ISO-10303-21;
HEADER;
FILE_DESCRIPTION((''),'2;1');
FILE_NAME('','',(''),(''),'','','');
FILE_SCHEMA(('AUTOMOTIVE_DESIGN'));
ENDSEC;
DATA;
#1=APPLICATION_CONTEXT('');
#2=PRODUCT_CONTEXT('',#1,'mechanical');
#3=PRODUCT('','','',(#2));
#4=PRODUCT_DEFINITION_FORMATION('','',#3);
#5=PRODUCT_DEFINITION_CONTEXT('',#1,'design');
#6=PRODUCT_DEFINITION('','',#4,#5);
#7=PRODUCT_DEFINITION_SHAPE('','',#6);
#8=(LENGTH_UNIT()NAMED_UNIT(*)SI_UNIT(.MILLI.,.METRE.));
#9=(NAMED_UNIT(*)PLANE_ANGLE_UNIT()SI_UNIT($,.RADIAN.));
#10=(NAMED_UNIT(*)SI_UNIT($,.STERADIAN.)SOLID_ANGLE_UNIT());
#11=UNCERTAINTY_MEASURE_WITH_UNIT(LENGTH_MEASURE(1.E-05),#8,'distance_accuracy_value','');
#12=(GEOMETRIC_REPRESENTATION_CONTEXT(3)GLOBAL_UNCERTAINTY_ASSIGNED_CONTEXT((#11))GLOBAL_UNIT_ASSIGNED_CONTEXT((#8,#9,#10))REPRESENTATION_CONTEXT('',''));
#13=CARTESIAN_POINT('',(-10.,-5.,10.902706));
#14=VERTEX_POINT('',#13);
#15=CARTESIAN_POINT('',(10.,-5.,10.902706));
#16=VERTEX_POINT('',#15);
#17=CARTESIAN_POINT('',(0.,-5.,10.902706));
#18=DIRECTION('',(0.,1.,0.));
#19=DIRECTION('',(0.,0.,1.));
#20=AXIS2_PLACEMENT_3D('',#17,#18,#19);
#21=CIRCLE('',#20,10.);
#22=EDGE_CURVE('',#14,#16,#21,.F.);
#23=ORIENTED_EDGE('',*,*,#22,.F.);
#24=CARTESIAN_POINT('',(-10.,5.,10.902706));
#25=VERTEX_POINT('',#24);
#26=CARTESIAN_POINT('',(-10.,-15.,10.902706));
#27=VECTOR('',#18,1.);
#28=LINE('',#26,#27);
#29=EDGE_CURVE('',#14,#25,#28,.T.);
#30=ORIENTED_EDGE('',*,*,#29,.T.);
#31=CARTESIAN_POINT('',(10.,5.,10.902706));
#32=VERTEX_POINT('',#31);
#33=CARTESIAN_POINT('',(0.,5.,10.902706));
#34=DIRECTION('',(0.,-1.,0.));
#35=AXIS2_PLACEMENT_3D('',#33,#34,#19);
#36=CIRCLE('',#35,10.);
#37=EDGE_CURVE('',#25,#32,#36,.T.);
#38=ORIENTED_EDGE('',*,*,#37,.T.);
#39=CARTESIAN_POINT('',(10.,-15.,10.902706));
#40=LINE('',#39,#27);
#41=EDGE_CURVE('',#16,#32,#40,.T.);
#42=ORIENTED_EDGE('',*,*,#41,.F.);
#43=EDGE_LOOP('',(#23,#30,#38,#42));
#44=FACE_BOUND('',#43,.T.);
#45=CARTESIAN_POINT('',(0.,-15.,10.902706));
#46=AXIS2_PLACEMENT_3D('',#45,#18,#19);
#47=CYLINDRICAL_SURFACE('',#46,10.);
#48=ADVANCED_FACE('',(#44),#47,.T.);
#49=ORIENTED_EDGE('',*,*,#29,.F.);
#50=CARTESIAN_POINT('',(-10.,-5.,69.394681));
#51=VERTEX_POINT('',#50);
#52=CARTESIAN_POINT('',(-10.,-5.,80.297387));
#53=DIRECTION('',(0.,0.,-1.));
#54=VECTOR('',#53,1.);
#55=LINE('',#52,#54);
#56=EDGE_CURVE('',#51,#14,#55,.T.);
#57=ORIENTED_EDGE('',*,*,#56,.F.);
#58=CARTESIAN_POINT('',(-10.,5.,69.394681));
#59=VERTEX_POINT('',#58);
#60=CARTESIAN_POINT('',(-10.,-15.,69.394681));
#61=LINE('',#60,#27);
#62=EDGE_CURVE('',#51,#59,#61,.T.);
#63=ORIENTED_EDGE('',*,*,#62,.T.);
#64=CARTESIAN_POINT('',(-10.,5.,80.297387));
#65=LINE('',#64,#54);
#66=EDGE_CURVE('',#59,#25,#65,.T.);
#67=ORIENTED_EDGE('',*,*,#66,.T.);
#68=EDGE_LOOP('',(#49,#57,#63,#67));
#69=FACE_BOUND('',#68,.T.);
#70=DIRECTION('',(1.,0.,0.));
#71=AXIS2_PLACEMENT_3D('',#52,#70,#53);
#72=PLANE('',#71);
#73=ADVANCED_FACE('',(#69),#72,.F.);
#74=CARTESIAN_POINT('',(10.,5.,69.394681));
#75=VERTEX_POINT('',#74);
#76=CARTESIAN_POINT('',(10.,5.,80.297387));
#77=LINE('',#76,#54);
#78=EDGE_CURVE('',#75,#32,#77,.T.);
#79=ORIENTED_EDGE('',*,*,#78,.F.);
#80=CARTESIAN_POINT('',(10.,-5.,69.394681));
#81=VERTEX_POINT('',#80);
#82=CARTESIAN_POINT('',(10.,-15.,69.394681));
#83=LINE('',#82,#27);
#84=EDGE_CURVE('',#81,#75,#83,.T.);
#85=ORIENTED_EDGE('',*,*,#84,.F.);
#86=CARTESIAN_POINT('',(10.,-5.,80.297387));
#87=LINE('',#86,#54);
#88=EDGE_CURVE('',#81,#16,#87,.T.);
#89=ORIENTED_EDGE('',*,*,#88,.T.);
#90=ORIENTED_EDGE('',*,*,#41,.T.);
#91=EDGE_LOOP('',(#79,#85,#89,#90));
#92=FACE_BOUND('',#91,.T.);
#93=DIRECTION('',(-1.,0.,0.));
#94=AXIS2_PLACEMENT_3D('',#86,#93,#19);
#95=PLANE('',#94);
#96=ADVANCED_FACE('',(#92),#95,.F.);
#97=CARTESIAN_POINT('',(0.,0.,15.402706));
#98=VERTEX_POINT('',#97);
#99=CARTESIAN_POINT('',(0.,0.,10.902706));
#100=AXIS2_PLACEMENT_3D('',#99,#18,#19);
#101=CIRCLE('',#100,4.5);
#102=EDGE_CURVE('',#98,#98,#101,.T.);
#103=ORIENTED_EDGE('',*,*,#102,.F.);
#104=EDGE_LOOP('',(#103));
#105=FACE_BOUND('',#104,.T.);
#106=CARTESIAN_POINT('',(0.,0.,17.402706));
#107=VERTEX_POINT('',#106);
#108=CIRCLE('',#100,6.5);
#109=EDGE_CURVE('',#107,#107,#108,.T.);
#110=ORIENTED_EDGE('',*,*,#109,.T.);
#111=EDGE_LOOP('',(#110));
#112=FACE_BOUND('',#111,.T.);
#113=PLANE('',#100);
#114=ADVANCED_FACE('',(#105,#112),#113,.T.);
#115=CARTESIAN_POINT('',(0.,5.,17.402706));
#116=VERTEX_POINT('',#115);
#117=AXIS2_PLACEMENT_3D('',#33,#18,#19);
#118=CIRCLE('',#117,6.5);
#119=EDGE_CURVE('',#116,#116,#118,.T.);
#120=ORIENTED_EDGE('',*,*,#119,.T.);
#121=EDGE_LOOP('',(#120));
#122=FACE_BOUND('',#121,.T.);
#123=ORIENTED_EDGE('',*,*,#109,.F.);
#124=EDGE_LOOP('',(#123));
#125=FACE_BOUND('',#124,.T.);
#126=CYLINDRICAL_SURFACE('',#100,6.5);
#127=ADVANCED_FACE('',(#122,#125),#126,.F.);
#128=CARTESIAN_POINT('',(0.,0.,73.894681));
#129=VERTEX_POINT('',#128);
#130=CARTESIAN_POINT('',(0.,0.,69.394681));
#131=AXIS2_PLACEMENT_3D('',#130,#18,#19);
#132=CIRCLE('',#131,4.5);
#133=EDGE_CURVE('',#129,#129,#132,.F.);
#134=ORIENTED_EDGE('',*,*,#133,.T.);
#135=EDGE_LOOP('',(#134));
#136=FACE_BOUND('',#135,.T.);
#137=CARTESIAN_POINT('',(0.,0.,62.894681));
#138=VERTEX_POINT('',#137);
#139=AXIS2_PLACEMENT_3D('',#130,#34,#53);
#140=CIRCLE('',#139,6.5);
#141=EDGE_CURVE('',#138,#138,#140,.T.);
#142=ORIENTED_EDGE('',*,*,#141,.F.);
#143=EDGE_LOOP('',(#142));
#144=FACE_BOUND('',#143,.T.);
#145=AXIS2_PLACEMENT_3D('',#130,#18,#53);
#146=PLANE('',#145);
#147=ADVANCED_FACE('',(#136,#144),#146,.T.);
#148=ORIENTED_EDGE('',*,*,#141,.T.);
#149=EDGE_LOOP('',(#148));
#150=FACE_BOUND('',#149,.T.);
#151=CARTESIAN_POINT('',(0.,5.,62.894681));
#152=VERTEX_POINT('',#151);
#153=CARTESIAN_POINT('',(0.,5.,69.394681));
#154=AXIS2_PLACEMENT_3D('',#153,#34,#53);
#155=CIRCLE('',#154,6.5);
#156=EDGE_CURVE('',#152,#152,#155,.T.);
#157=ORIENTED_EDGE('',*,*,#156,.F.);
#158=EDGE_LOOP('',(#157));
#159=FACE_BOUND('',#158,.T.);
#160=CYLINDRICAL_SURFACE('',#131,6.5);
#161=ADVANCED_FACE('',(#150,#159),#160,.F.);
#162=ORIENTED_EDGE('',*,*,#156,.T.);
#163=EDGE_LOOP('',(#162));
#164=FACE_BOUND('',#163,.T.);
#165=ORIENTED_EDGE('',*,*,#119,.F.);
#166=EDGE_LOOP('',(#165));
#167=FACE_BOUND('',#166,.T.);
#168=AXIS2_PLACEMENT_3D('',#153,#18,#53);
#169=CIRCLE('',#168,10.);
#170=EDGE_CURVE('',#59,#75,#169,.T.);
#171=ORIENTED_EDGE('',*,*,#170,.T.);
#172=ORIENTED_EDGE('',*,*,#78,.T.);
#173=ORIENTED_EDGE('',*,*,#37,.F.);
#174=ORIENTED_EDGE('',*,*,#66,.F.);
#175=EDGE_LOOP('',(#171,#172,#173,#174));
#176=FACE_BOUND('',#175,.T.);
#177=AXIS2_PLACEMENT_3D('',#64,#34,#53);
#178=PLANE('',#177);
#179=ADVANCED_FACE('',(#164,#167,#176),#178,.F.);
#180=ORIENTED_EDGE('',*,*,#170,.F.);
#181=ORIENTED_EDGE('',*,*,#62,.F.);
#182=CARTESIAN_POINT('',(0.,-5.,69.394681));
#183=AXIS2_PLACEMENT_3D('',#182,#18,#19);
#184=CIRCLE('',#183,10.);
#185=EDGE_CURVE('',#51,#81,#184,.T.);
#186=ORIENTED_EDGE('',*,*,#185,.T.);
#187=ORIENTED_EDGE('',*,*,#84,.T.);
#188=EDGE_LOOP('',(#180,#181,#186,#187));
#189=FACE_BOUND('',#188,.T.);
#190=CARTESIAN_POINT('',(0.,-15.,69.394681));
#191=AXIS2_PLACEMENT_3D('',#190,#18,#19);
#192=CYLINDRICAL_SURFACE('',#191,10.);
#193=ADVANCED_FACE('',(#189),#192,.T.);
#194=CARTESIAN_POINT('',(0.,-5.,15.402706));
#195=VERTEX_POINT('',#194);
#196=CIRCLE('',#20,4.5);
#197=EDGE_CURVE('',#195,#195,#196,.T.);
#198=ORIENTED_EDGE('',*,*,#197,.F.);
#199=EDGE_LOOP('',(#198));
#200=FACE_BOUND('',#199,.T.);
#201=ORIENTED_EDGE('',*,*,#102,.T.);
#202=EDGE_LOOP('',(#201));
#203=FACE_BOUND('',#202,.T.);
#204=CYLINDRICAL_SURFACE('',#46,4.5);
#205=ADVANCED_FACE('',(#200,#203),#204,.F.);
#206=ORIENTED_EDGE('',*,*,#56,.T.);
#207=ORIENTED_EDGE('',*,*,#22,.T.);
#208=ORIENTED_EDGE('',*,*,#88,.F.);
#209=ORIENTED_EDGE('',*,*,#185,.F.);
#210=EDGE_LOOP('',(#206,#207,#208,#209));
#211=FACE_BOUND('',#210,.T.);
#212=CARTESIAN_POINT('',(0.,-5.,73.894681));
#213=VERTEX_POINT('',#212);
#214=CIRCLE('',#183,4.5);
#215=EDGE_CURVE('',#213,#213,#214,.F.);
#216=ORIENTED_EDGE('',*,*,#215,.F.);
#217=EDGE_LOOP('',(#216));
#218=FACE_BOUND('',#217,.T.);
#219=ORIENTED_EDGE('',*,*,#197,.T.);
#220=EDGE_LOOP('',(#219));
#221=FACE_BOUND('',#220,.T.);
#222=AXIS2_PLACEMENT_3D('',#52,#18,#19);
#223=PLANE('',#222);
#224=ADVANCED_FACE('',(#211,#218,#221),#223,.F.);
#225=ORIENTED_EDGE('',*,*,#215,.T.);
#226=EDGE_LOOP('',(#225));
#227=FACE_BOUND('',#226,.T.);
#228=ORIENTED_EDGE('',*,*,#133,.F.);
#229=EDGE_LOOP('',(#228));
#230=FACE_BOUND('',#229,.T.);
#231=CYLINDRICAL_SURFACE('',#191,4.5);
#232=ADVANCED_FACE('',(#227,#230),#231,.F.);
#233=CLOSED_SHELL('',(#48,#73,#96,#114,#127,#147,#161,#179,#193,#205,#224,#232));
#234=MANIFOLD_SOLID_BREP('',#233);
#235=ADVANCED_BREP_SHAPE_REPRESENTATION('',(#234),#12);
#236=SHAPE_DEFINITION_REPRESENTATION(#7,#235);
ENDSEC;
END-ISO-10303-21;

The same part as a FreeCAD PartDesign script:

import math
import FreeCAD as App
import Part
import Sketcher

doc = App.newDocument("Part")
body = doc.addObject("PartDesign::Body", "Body")

sketch1 = body.newObject("Sketcher::SketchObject", "Sketch")
sketch1.AttachmentSupport = (doc.getObject("XY_Plane"), [""])
sketch1.MapMode = "FlatFace"
sketch1.addGeometry(Part.LineSegment(App.Vector(-10, 5, 0), App.Vector(-10, -5, 0)), False)
sketch1.addGeometry(Part.LineSegment(App.Vector(-10, -5, 0), App.Vector(10, -5, 0)), False)
sketch1.addGeometry(Part.LineSegment(App.Vector(10, -5, 0), App.Vector(10, 5, 0)), False)
sketch1.addGeometry(Part.LineSegment(App.Vector(10, 5, 0), App.Vector(-10, 5, 0)), False)
sketch1.addConstraint(Sketcher.Constraint("Coincident", 0, 2, 1, 1))
sketch1.addConstraint(Sketcher.Constraint("Coincident", 1, 2, 2, 1))
sketch1.addConstraint(Sketcher.Constraint("Coincident", 2, 2, 3, 1))
sketch1.addConstraint(Sketcher.Constraint("Coincident", 3, 2, 0, 1))
sketch1.addConstraint(Sketcher.Constraint("Vertical", 0))
sketch1.addConstraint(Sketcher.Constraint("Horizontal", 1))
sketch1.addConstraint(Sketcher.Constraint("Vertical", 2))
sketch1.addConstraint(Sketcher.Constraint("Horizontal", 3))
sketch1.addConstraint(Sketcher.Constraint("Symmetric", 0, 2, 2, 2, -1, 1))
sketch1.addConstraint(Sketcher.Constraint("DistanceX", 1, 1, 1, 2, 20.0))
sketch1.addConstraint(Sketcher.Constraint("DistanceY", 0, 2, 0, 1, 10.0))
pad1 = body.newObject("PartDesign::Pad", "Pad")
pad1.Profile = sketch1
pad1.Length = 80.297387

sketch2 = body.newObject("Sketcher::SketchObject", "Sketch001")
sketch2.AttachmentSupport = (doc.getObject("XZ_Plane"), [""])
sketch2.MapMode = "FlatFace"
sketch2.AttachmentOffset = App.Placement(App.Vector(0, 0, -5), App.Rotation())
sketch2.addGeometry(Part.Circle(App.Vector(0, 10.902706, 0), App.Vector(0, 0, 1), 6.5), False)
sketch2.addConstraint(Sketcher.Constraint("PointOnObject", 0, 3, -2))
sketch2.addConstraint(Sketcher.Constraint("Diameter", 0, 13.0))
sketch2.addConstraint(Sketcher.Constraint("DistanceY", -1, 1, 0, 3, 10.902706))
pocket1 = body.newObject("PartDesign::Pocket", "Pocket")
pocket1.Profile = sketch2
pocket1.Length = 5
pocket1.Reversed = True

sketch3 = body.newObject("Sketcher::SketchObject", "Sketch002")
sketch3.AttachmentSupport = (doc.getObject("XZ_Plane"), [""])
sketch3.MapMode = "FlatFace"
sketch3.AttachmentOffset = App.Placement(App.Vector(0, 0, -5), App.Rotation())
sketch3.addGeometry(Part.Circle(App.Vector(0, 10.902706, 0), App.Vector(0, 0, 1), 4.5), False)
sketch3.addGeometry(Part.LineSegment(App.Vector(-21.262123, 10.902706, 0), App.Vector(-10, 10.902706, 0)), False)
sketch3.addGeometry(Part.ArcOfCircle(Part.Circle(App.Vector(0, 10.902706, 0), App.Vector(0, 0, 1), 10), math.radians(180), math.radians(360)), False)
sketch3.addGeometry(Part.LineSegment(App.Vector(10, 10.902706, 0), App.Vector(21.262123, 10.902706, 0)), False)
sketch3.addGeometry(Part.ArcOfCircle(Part.Circle(App.Vector(0, 10.902706, 0), App.Vector(0, 0, 1), 21.262123), math.radians(180), math.radians(360)), False)
sketch3.addConstraint(Sketcher.Constraint("Coincident", 1, 2, 2, 1))
sketch3.addConstraint(Sketcher.Constraint("Coincident", 2, 2, 3, 1))
sketch3.addConstraint(Sketcher.Constraint("Coincident", 3, 2, 4, 2))
sketch3.addConstraint(Sketcher.Constraint("Coincident", 4, 1, 1, 1))
sketch3.addConstraint(Sketcher.Constraint("Horizontal", 1))
sketch3.addConstraint(Sketcher.Constraint("Horizontal", 3))
sketch3.addConstraint(Sketcher.Constraint("Coincident", 2, 3, 0, 3))
sketch3.addConstraint(Sketcher.Constraint("Coincident", 4, 3, 0, 3))
sketch3.addConstraint(Sketcher.Constraint("Symmetric", 1, 2, 2, 2, -2))
sketch3.addConstraint(Sketcher.Constraint("Horizontal", 4, 3, 1, 2))
sketch3.addConstraint(Sketcher.Constraint("Diameter", 0, 9.0))
sketch3.addConstraint(Sketcher.Constraint("Radius", 2, 10.0))
sketch3.addConstraint(Sketcher.Constraint("Radius", 4, 21.262123))
sketch3.addConstraint(Sketcher.Constraint("DistanceY", -1, 1, 0, 3, 10.902706))
pocket2 = body.newObject("PartDesign::Pocket", "Pocket001")
pocket2.Profile = sketch3
pocket2.Length = 20
pocket2.Reversed = True
doc.recompute()

datumplane = body.newObject("PartDesign::Plane", "DatumPlane")
datumplane.AttachmentSupport = (doc.getObject("XY_Plane"), [""])
datumplane.MapMode = "FlatFace"
datumplane.AttachmentOffset = App.Placement(App.Vector(0, 0, 40.148694), App.Rotation())
mirrored = body.newObject("PartDesign::Mirrored", "Mirrored")
mirrored.Originals = [pocket1, pocket2]
mirrored.MirrorPlane = (datumplane, [""])
body.Tip = mirrored

doc.recompute()
